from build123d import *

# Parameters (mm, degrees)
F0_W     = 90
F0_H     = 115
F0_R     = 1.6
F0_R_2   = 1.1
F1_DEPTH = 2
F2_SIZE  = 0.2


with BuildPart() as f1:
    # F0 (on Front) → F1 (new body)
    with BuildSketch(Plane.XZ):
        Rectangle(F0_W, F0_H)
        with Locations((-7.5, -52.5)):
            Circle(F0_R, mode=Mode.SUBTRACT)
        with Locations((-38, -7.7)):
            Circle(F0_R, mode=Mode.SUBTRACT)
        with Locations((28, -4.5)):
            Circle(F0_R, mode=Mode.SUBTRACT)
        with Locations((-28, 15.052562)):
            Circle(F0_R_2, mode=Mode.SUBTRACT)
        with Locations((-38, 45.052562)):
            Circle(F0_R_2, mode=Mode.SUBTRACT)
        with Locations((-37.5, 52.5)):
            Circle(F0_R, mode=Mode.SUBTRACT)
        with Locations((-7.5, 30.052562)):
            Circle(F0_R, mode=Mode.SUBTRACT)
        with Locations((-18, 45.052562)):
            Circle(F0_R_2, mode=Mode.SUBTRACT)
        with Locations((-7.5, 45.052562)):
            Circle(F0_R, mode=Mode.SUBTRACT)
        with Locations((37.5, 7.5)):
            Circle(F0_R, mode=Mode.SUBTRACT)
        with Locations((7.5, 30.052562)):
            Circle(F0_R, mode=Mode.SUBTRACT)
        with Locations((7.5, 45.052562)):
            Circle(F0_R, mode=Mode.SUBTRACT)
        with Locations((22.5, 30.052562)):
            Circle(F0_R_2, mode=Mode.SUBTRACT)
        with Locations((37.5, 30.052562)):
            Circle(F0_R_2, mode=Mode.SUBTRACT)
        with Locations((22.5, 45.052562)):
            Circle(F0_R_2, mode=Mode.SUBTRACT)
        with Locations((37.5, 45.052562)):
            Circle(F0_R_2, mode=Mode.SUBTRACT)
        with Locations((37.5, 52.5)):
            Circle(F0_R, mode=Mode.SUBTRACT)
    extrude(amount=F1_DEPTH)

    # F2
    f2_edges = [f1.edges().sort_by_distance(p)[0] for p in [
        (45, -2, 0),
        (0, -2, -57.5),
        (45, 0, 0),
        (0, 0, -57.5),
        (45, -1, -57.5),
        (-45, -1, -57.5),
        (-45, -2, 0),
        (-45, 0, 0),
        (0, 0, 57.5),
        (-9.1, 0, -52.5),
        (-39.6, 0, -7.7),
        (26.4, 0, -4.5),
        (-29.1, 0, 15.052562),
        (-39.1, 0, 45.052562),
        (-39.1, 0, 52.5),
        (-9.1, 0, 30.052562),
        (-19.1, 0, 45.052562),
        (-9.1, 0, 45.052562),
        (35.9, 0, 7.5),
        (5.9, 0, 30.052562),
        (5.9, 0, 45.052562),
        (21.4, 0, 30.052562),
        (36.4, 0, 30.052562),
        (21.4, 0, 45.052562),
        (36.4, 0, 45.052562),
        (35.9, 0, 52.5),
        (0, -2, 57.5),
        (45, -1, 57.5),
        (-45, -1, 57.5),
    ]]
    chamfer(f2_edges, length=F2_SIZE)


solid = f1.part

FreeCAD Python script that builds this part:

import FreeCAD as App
import Part
import Sketcher

V = App.Vector
Q = App.Units.Quantity


def edges_at(feature, points):
    """Names of the edges that pass closest to the given points."""
    edges = feature.Shape.Edges
    near = lambda p: min(range(len(edges)), key=lambda i: edges[i].distToShape(Part.Vertex(*p))[0])
    return sorted({f"Edge{near(p) + 1}" for p in points})

doc = App.newDocument("Part")
body = doc.addObject("PartDesign::Body", "Body")

sketch1 = body.newObject("Sketcher::SketchObject", "Sketch")
sketch1.AttachmentSupport = (doc.getObject("XZ_Plane"), [""])
sketch1.MapMode = "FlatFace"
sketch1.addGeometry(Part.LineSegment(V(-45, 57.5, 0), V(-45, -57.5, 0)), False)
sketch1.addGeometry(Part.LineSegment(V(-45, -57.5, 0), V(45, -57.5, 0)), False)
sketch1.addGeometry(Part.LineSegment(V(45, -57.5, 0), V(45, 57.5, 0)), False)
sketch1.addGeometry(Part.LineSegment(V(45, 57.5, 0), V(-45, 57.5, 0)), False)
sketch1.addGeometry(Part.Circle(V(-7.5, -52.5, 0), V(0, 0, 1), 1.6), False)
sketch1.addGeometry(Part.Circle(V(-38, -7.7, 0), V(0, 0, 1), 1.6), False)
sketch1.addGeometry(Part.Circle(V(28, -4.5, 0), V(0, 0, 1), 1.6), False)
sketch1.addGeometry(Part.Circle(V(-28, 15.1, 0), V(0, 0, 1), 1.1), False)
sketch1.addGeometry(Part.Circle(V(-38, 45.1, 0), V(0, 0, 1), 1.1), False)
sketch1.addGeometry(Part.Circle(V(-37.5, 52.5, 0), V(0, 0, 1), 1.6), False)
sketch1.addGeometry(Part.Circle(V(-7.5, 30.1, 0), V(0, 0, 1), 1.6), False)
sketch1.addGeometry(Part.Circle(V(-18, 45.1, 0), V(0, 0, 1), 1.1), False)
sketch1.addGeometry(Part.Circle(V(-7.5, 45.1, 0), V(0, 0, 1), 1.6), False)
sketch1.addGeometry(Part.Circle(V(37.5, 7.5, 0), V(0, 0, 1), 1.6), False)
sketch1.addGeometry(Part.Circle(V(7.5, 30.1, 0), V(0, 0, 1), 1.6), False)
sketch1.addGeometry(Part.Circle(V(7.5, 45.1, 0), V(0, 0, 1), 1.6), False)
sketch1.addGeometry(Part.Circle(V(22.5, 30.1, 0), V(0, 0, 1), 1.1), False)
sketch1.addGeometry(Part.Circle(V(37.5, 30.1, 0), V(0, 0, 1), 1.1), False)
sketch1.addGeometry(Part.Circle(V(22.5, 45.1, 0), V(0, 0, 1), 1.1), False)
sketch1.addGeometry(Part.Circle(V(37.5, 45.1, 0), V(0, 0, 1), 1.1), False)
sketch1.addGeometry(Part.Circle(V(37.5, 52.5, 0), V(0, 0, 1), 1.6), False)
sketch1.addConstraint(Sketcher.Constraint("Coincident", 0, 2, 1, 1))
sketch1.addConstraint(Sketcher.Constraint("Coincident", 1, 2, 2, 1))
sketch1.addConstraint(Sketcher.Constraint("Coincident", 2, 2, 3, 1))
sketch1.addConstraint(Sketcher.Constraint("Coincident", 3, 2, 0, 1))
sketch1.addConstraint(Sketcher.Constraint("Vertical", 0))
sketch1.addConstraint(Sketcher.Constraint("Horizontal", 1))
sketch1.addConstraint(Sketcher.Constraint("Vertical", 2))
sketch1.addConstraint(Sketcher.Constraint("Horizontal", 3))
sketch1.addConstraint(Sketcher.Constraint("Equal", 4, 5))
sketch1.addConstraint(Sketcher.Constraint("Equal", 5, 6))
sketch1.addConstraint(Sketcher.Constraint("Equal", 7, 8))
sketch1.addConstraint(Sketcher.Constraint("Equal", 6, 9))
sketch1.addConstraint(Sketcher.Constraint("Equal", 9, 10))
sketch1.addConstraint(Sketcher.Constraint("Equal", 8, 11))
sketch1.addConstraint(Sketcher.Constraint("Equal", 10, 12))
sketch1.addConstraint(Sketcher.Constraint("Equal", 12, 13))
sketch1.addConstraint(Sketcher.Constraint("Equal", 13, 14))
sketch1.addConstraint(Sketcher.Constraint("Equal", 14, 15))
sketch1.addConstraint(Sketcher.Constraint("Equal", 11, 16))
sketch1.addConstraint(Sketcher.Constraint("Equal", 16, 17))
sketch1.addConstraint(Sketcher.Constraint("Equal", 17, 18))
sketch1.addConstraint(Sketcher.Constraint("Equal", 18, 19))
sketch1.addConstraint(Sketcher.Constraint("Equal", 15, 20))
sketch1.addConstraint(Sketcher.Constraint("Symmetric", 0, 2, 2, 2, -1, 1))
sketch1.addConstraint(Sketcher.Constraint("Symmetric", 10, 3, 14, 3, -2))
sketch1.addConstraint(Sketcher.Constraint("Symmetric", 12, 3, 15, 3, -2))
sketch1.addConstraint(Sketcher.Constraint("Symmetric", 9, 3, 20, 3, -2))
sketch1.addConstraint(Sketcher.Constraint("Horizontal", 8, 3, 11, 3))
sketch1.addConstraint(Sketcher.Constraint("Horizontal", 11, 3, 12, 3))
sketch1.addConstraint(Sketcher.Constraint("Horizontal", 14, 3, 16, 3))
sketch1.addConstraint(Sketcher.Constraint("Horizontal", 16, 3, 17, 3))
sketch1.addConstraint(Sketcher.Constraint("Horizontal", 15, 3, 18, 3))
sketch1.addConstraint(Sketcher.Constraint("Horizontal", 18, 3, 19, 3))
sketch1.addConstraint(Sketcher.Constraint("Vertical", 5, 3, 8, 3))
sketch1.addConstraint(Sketcher.Constraint("Vertical", 4, 3, 10, 3))
sketch1.addConstraint(Sketcher.Constraint("Vertical", 10, 3, 12, 3))
sketch1.addConstraint(Sketcher.Constraint("Vertical", 13, 3, 17, 3))
sketch1.addConstraint(Sketcher.Constraint("Vertical", 16, 3, 18, 3))
sketch1.addConstraint(Sketcher.Constraint("Vertical", 17, 3, 19, 3))
sketch1.addConstraint(Sketcher.Constraint("Vertical", 19, 3, 20, 3))
sketch1.addConstraint(Sketcher.Constraint("Diameter", 4, Q("3.2 mm")))
sketch1.addConstraint(Sketcher.Constraint("Diameter", 7, Q("2.2 mm")))
sketch1.addConstraint(Sketcher.Constraint("DistanceX", 1, 1, 1, 2, Q("90 mm")))
sketch1.addConstraint(Sketcher.Constraint("DistanceY", 0, 2, 0, 1, Q("115 mm")))
sketch1.addConstraint(Sketcher.Constraint("DistanceX", 5, 3, -1, 1, Q("38 mm")))
sketch1.addConstraint(Sketcher.Constraint("DistanceX", -1, 1, 6, 3, Q("28 mm")))
sketch1.addConstraint(Sketcher.Constraint("DistanceX", 7, 3, -1, 1, Q("28 mm")))
sketch1.addConstraint(Sketcher.Constraint("DistanceX", 11, 3, -1, 1, Q("18 mm")))
sketch1.addConstraint(Sketcher.Constraint("DistanceY", 4, 3, 6, 3, Q("48 mm")))
sketch1.addConstraint(Sketcher.Constraint("DistanceY", 7, 3, 8, 3, Q("30 mm")))
sketch1.addConstraint(Sketcher.Constraint("DistanceY", 6, 3, 9, 3, Q("57 mm")))
sketch1.addConstraint(Sketcher.Constraint("DistanceX", 9, 3, 4, 3, Q("30 mm")))
sketch1.addConstraint(Sketcher.Constraint("DistanceY", 7, 3, 10, 3, Q("15 mm")))
sketch1.addConstraint(Sketcher.Constraint("DistanceY", 6, 3, 13, 3, Q("12 mm")))
sketch1.addConstraint(Sketcher.Constraint("DistanceX", 10, 3, 13, 3, Q("45 mm")))
sketch1.addConstraint(Sketcher.Constraint("DistanceX", 14, 3, 16, 3, Q("15 mm")))
sketch1.addConstraint(Sketcher.Constraint("DistanceY", 0, 2, 4, 3, Q("5 mm")))
sketch1.addConstraint(Sketcher.Constraint("DistanceY", 5, 3, -1, 1, Q("7.7 mm")))
sketch1.addConstraint(Sketcher.Constraint("DistanceY", 4, 3, 7, 3, Q("67.552562 mm")))
pad1 = body.newObject("PartDesign::Pad", "Pad")
pad1.Profile = sketch1
pad1.Length = 2
doc.recompute()

chamfer = body.newObject("PartDesign::Chamfer", "Chamfer")
chamfer.Base = (pad1, edges_at(pad1, [
    (45, -2, 0),
    (0, -2, -57.5),
    (45, 0, 0),
    (0, 0, -57.5),
    (45, -1, -57.5),
    (-45, -1, -57.5),
    (-45, -2, 0),
    (-45, 0, 0),
    (0, 0, 57.5),
    (-9.1, 0, -52.5),
    (-39.6, 0, -7.7),
    (26.4, 0, -4.5),
    (-29.1, 0, 15.053),
    (-39.1, 0, 45.053),
    (-39.1, 0, 52.5),
    (-9.1, 0, 30.053),
    (-19.1, 0, 45.053),
    (-9.1, 0, 45.053),
    (35.9, 0, 7.5),
    (5.9, 0, 30.053),
    (5.9, 0, 45.053),
    (21.4, 0, 30.053),
    (36.4, 0, 30.053),
    (21.4, 0, 45.053),
    (36.4, 0, 45.053),
    (35.9, 0, 52.5),
    (0, -2, 57.5),
    (45, -1, 57.5),
    (-45, -1, 57.5),
]))
chamfer.Size = 0.2

doc.recompute()
